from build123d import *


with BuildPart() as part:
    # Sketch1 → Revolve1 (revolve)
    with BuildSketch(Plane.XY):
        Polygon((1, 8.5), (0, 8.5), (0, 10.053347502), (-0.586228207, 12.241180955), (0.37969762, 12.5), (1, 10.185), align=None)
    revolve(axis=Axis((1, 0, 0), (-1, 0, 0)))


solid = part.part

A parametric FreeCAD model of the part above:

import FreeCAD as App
import Part
import Sketcher

V = App.Vector
Q = App.Units.Quantity


def add_polygon(sketch, points):
    """Adds a closed chain of lines whose ends are joined by coincident constraints."""
    first, n = sketch.GeometryCount, len(points)
    for a, b in zip(points, points[1:] + points[:1]):
        sketch.addGeometry(Part.LineSegment(App.Vector(*a, 0), App.Vector(*b, 0)), False)
    for i in range(n):
        sketch.addConstraint(Sketcher.Constraint("Coincident", first + i, 2, first + (i + 1) % n, 1))

doc = App.newDocument("Part")
body = doc.addObject("PartDesign::Body", "Body")

# Sketch on XY plane
sketch1 = body.newObject("Sketcher::SketchObject", "Sketch")
sketch1.AttachmentSupport = (doc.getObject("XY_Plane"), [""])
sketch1.MapMode = "FlatFace"
add_polygon(sketch1, [(0, 8.5), (1, 8.5), (1, 10.185), (0.379698, 12.5), (-0.586228, 12.241181), (0, 10.053348)])  # lines 0-5
sketch1.addConstraint([
    Sketcher.Constraint("Horizontal", 0),
    Sketcher.Constraint("Vertical", 1),
    Sketcher.Constraint("Vertical", 5),
    Sketcher.Constraint("PointOnObject", 4, 2, -2),
    Sketcher.Constraint("Perpendicular", 2, 3),
    Sketcher.Constraint("Perpendicular", 3, 4),
    Sketcher.Constraint("DistanceX", 0, 1, 0, 2, 1.0),
    Sketcher.Constraint("Angle", 2, Q("105 deg")),
    Sketcher.Constraint("Distance", 3, 1.0),
    Sketcher.Constraint("DistanceY", 0, 2, 2, 2, 4.0),
    Sketcher.Constraint("DistanceY", -1, 1, 0, 2, 8.5),
    Sketcher.Constraint("DistanceY", 1, 1, 1, 2, 1.685),
])
revolution = body.newObject("PartDesign::Revolution", "Revolution")
revolution.Profile = sketch1
revolution.ReferenceAxis = (sketch1, ["H_Axis"])
revolution.Angle = 360

doc.recompute()
